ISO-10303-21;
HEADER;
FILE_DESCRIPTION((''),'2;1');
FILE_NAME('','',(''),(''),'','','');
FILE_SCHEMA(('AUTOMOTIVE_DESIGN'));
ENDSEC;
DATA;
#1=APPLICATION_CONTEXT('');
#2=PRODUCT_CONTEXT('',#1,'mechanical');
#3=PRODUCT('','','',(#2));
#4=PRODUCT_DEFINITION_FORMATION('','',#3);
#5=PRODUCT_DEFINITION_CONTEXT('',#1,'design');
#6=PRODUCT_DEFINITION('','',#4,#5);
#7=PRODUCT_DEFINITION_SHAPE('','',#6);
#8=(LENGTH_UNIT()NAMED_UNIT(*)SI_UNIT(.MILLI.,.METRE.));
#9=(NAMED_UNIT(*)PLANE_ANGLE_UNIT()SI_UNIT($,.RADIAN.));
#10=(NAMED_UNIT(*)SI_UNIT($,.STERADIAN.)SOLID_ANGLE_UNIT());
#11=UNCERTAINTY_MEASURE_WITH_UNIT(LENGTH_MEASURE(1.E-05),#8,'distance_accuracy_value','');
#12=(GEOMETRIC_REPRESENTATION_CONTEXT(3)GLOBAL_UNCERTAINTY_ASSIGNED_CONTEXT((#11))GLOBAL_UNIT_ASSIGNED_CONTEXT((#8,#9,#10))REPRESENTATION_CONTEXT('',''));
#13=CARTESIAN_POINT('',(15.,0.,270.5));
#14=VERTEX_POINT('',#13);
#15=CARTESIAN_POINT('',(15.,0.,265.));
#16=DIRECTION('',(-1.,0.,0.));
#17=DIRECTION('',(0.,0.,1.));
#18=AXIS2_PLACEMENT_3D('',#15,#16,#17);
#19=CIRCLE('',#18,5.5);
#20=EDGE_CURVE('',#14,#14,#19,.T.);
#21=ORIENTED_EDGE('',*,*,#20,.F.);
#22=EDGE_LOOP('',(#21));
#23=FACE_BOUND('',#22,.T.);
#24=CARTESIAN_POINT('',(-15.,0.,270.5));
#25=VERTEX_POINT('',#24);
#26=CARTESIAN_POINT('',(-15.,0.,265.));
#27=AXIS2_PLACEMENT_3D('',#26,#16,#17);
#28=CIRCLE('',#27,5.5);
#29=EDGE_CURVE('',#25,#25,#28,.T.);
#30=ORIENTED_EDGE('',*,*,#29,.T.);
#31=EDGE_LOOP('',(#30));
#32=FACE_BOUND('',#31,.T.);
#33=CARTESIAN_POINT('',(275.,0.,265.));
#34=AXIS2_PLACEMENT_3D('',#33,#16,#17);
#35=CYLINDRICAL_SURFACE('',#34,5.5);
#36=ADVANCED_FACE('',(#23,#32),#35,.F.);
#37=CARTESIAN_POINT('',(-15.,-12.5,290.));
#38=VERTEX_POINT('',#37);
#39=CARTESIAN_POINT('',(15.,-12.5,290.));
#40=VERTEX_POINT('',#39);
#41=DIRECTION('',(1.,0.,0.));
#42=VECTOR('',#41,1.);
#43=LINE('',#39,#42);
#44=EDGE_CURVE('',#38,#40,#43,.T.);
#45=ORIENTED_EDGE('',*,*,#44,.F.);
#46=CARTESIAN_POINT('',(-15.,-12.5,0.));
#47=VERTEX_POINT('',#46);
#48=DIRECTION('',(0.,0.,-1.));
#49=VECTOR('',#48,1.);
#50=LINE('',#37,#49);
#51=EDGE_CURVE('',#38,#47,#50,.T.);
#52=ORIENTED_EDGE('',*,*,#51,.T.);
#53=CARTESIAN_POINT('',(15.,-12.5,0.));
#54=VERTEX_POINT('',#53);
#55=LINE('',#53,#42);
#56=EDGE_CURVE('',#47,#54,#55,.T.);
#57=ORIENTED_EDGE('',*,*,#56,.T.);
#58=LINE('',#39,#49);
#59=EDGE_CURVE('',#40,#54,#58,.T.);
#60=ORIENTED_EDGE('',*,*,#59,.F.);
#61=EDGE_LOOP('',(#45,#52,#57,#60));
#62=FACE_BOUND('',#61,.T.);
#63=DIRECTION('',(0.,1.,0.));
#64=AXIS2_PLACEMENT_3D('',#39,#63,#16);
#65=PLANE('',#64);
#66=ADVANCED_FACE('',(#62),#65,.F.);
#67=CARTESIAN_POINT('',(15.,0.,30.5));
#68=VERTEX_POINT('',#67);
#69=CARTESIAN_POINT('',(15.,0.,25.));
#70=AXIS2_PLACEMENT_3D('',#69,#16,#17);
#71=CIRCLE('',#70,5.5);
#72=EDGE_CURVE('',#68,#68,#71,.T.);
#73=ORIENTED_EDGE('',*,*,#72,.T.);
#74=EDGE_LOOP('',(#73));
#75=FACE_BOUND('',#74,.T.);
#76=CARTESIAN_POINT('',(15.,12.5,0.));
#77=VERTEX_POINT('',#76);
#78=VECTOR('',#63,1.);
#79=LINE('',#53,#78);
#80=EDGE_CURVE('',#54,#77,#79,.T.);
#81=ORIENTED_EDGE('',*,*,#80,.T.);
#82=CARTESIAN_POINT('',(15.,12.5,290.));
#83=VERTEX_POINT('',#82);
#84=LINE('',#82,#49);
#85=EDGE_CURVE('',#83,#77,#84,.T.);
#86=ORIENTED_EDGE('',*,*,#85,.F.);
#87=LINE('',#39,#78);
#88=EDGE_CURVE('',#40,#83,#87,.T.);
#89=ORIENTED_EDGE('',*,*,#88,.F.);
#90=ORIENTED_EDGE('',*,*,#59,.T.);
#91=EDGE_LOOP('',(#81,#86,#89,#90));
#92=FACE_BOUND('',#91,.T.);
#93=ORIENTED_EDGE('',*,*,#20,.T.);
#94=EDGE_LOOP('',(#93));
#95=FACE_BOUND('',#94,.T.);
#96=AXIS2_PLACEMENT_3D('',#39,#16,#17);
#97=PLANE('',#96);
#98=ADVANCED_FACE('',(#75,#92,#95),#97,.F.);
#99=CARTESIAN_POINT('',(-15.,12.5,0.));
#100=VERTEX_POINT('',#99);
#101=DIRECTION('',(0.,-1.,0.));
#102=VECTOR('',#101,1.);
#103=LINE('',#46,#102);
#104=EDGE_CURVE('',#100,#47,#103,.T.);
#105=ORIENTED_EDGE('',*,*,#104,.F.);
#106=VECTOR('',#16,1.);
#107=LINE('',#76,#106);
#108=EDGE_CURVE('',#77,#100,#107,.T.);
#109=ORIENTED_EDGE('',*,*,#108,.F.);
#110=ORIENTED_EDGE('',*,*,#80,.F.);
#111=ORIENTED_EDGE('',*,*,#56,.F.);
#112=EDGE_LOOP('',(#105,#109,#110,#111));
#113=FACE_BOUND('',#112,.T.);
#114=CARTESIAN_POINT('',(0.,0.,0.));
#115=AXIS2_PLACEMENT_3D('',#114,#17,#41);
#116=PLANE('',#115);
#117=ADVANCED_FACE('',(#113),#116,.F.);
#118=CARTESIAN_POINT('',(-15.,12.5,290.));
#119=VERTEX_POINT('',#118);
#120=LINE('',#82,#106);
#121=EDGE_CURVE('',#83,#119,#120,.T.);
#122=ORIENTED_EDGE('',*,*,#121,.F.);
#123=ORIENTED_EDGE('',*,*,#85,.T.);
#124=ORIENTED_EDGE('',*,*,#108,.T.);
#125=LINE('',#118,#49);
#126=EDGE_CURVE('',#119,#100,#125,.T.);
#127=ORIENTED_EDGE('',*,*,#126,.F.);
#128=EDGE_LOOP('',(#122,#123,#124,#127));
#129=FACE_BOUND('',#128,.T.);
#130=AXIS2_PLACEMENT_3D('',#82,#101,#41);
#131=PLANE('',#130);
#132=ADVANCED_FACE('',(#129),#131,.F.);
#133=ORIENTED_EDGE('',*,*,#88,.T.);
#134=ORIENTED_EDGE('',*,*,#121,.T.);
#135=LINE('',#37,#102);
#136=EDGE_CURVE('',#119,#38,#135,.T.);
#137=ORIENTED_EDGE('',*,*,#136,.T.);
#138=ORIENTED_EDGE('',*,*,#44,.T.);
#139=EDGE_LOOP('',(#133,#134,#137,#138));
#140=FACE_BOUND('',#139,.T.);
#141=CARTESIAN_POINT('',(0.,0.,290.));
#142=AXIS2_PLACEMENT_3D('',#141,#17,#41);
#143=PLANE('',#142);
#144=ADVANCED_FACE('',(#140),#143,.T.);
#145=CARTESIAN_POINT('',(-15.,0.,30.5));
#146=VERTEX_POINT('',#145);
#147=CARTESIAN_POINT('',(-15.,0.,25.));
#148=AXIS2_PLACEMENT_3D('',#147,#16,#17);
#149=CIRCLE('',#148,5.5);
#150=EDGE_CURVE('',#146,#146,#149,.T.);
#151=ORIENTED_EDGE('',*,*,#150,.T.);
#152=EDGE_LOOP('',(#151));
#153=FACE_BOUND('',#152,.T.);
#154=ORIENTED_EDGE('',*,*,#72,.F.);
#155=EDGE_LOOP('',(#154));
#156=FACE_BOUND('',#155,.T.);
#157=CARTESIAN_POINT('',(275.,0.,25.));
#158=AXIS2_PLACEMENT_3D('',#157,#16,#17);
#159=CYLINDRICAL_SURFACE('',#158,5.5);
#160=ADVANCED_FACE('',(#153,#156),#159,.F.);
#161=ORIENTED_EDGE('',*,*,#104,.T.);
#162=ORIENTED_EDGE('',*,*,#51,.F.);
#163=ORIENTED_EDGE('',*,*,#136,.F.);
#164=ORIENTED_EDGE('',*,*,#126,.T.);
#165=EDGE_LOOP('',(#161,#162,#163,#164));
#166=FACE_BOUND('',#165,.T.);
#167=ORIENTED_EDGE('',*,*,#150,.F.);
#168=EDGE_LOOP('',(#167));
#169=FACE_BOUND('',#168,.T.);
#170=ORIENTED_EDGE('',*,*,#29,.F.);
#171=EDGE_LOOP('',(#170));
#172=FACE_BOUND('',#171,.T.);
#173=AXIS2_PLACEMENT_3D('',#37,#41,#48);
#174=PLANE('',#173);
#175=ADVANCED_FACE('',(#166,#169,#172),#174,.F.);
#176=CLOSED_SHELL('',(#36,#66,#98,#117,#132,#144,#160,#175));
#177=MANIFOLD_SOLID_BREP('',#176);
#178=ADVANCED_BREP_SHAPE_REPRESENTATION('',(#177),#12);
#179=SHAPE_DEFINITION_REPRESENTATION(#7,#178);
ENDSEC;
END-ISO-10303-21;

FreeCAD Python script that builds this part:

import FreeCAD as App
import Part
import Sketcher
from FreeCAD import Vector
Q = App.Units.Quantity


def add_polygon(sketch, points):
    """Adds a closed chain of lines whose ends are joined by coincident constraints."""
    first, n = sketch.GeometryCount, len(points)
    for a, b in zip(points, points[1:] + points[:1]):
        sketch.addGeometry(Part.LineSegment(App.Vector(*a, 0), App.Vector(*b, 0)), False)
    for i in range(n):
        sketch.addConstraint(Sketcher.Constraint("Coincident", first + i, 2, first + (i + 1) % n, 1))

doc = App.newDocument("Part")
params = doc.addObject("Spreadsheet::Sheet", "Params")
for row, (alias, value) in enumerate([
    ("sketch1_width", "30 mm"),
    ("sketch1_height", "25 mm"),
    ("pad1_length", "290 mm"),
    ("sketch2_diameter", "11 mm"),
    ("pocket1_length", "290 mm"),
], start=1):
    params.set(f"A{row}", alias)
    params.set(f"B{row}", "=" + value)
    params.setAlias(f"B{row}", alias)

body = doc.addObject("PartDesign::Body", "Body")

sketch1 = body.newObject("Sketcher::SketchObject", "Sketch")
sketch1.AttachmentSupport = (doc.getObject("XY_Plane"), [""])
sketch1.MapMode = "FlatFace"
add_polygon(sketch1, [(-15, 12), (-15, -12), (15, -12), (15, 12)])
sketch1.addConstraint(Sketcher.Constraint("Vertical", 0))
sketch1.addConstraint(Sketcher.Constraint("Horizontal", 1))
sketch1.addConstraint(Sketcher.Constraint("Vertical", 2))
sketch1.addConstraint(Sketcher.Constraint("Horizontal", 3))
sketch1.addConstraint(Sketcher.Constraint("Symmetric", 0, 2, 2, 2, -1, 1))
sketch1.addConstraint(Sketcher.Constraint("DistanceX", 1, 1, 1, 2, Q("30 mm")))
sketch1.addConstraint(Sketcher.Constraint("DistanceY", 0, 2, 0, 1, Q("25 mm")))
sketch1.setExpression("Constraints[9]", "Params.sketch1_width")
sketch1.setExpression("Constraints[10]", "Params.sketch1_height")
pad1 = body.newObject("PartDesign::Pad", "Pad")
pad1.Profile = sketch1
pad1.setExpression("Length", "Params.pad1_length")

sketch2 = body.newObject("Sketcher::SketchObject", "Sketch001")
sketch2.AttachmentSupport = (doc.getObject("YZ_Plane"), [""])
sketch2.MapMode = "FlatFace"
sketch2.AttachmentOffset = App.Placement(Vector(0, 0, -15), App.Rotation())
sketch2.addGeometry(Part.Circle(Vector(0, 25, 0), Vector(0, 0, 1), 6), False)
sketch2.addGeometry(Part.Circle(Vector(0, 265, 0), Vector(0, 0, 1), 6), False)
sketch2.addConstraint(Sketcher.Constraint("Equal", 0, 1))
sketch2.addConstraint(Sketcher.Constraint("PointOnObject", 0, 3, -2))
sketch2.addConstraint(Sketcher.Constraint("PointOnObject", 1, 3, -2))
sketch2.addConstraint(Sketcher.Constraint("Diameter", 0, Q("11 mm")))
sketch2.addConstraint(Sketcher.Constraint("DistanceY", -1, 1, 0, 3, Q("25 mm")))
sketch2.addConstraint(Sketcher.Constraint("DistanceY", -1, 1, 1, 3, Q("265 mm")))
sketch2.setExpression("Constraints[3]", "Params.sketch2_diameter")
pocket1 = body.newObject("PartDesign::Pocket", "Pocket")
pocket1.Profile = sketch2
pocket1.setExpression("Length", "Params.pocket1_length")
pocket1.Reversed = True

doc.recompute()
